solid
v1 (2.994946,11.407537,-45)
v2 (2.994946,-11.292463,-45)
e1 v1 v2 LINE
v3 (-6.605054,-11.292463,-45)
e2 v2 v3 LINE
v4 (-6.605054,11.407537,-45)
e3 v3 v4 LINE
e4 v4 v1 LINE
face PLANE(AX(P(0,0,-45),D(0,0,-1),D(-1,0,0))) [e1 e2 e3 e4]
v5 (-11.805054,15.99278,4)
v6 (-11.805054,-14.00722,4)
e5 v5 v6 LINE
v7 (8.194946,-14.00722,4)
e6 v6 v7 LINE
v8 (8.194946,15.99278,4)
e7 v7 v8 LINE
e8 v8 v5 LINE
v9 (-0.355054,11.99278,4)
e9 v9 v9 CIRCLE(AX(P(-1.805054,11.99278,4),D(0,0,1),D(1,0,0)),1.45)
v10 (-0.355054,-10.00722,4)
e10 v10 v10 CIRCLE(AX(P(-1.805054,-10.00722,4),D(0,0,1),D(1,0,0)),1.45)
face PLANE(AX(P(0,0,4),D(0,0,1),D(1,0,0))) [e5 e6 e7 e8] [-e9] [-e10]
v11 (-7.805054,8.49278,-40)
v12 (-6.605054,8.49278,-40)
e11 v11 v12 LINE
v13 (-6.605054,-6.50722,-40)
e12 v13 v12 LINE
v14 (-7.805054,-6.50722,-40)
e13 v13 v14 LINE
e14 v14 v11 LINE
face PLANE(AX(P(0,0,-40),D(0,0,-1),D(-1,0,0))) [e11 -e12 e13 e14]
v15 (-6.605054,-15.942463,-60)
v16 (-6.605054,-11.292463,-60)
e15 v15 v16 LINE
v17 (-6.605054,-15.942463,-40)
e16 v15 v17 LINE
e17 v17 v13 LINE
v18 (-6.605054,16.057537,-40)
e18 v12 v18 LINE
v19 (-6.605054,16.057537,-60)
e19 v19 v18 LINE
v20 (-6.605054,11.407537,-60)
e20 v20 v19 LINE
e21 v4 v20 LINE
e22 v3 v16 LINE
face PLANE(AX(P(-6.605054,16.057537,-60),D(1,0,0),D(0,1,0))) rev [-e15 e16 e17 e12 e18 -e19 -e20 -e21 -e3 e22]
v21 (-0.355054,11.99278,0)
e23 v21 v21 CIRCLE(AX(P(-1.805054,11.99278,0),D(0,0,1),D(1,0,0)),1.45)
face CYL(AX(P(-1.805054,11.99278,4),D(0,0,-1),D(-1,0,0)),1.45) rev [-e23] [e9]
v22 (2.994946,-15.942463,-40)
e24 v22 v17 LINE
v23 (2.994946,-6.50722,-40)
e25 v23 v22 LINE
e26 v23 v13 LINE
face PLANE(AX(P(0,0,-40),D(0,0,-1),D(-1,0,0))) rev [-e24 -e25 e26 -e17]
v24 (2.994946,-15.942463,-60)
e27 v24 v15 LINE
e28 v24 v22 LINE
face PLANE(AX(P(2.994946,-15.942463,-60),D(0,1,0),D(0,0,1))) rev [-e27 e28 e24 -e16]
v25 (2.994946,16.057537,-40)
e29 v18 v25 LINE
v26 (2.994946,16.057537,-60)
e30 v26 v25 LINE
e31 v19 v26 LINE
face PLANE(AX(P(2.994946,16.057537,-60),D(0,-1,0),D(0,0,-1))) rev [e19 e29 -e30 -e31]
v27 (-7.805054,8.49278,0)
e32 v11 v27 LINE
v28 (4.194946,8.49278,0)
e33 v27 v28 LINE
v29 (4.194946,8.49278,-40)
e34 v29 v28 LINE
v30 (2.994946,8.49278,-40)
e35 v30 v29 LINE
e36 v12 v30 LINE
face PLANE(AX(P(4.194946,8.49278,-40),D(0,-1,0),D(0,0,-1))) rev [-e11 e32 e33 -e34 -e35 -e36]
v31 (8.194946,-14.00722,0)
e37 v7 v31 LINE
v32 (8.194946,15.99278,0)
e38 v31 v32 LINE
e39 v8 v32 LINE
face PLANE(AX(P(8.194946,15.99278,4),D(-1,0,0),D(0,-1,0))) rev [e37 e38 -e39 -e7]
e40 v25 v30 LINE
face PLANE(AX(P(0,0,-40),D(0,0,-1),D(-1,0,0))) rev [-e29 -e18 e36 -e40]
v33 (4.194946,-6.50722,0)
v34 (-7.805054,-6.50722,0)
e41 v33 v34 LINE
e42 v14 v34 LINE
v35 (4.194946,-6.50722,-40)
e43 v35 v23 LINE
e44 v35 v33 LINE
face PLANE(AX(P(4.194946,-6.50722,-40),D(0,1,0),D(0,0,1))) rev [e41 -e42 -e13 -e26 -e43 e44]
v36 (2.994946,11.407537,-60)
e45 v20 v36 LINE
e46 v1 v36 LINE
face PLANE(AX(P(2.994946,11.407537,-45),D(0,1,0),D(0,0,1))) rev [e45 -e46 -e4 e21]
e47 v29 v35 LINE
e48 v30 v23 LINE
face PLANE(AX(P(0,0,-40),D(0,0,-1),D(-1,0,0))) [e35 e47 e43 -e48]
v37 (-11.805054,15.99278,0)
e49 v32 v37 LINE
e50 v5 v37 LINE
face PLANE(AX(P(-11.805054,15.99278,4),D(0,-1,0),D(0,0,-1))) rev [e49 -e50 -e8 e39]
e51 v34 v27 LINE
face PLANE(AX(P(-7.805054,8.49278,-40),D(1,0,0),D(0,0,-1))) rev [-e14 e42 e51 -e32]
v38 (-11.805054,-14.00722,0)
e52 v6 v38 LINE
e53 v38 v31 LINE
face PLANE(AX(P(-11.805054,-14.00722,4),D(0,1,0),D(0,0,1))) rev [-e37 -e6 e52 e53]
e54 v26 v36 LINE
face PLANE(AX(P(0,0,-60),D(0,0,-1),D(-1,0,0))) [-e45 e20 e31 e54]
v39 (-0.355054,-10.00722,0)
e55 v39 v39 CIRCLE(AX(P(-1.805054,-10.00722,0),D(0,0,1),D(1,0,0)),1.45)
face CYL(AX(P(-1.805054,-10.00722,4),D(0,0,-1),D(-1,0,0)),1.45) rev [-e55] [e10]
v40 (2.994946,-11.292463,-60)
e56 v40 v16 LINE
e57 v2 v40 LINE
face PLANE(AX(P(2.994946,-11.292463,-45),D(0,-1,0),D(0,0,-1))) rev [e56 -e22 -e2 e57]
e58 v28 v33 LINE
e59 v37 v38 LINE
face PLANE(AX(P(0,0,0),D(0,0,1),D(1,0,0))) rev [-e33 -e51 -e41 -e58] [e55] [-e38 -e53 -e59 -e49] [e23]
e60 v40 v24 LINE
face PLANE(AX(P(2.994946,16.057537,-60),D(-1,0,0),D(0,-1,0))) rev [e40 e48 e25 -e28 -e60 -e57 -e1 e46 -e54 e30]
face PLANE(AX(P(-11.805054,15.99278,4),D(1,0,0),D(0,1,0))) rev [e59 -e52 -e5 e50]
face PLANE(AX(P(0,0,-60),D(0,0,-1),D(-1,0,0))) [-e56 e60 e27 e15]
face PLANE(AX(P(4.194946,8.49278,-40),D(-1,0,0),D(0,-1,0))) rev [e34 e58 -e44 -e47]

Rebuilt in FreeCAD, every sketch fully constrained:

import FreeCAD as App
import Part
import Sketcher
from FreeCAD import Vector
Q = App.Units.Quantity


def add_polygon(sketch, points):
    """Adds a closed chain of lines whose ends are joined by coincident constraints."""
    first, n = sketch.GeometryCount, len(points)
    for a, b in zip(points, points[1:] + points[:1]):
        sketch.addGeometry(Part.LineSegment(App.Vector(*a, 0), App.Vector(*b, 0)), False)
    for i in range(n):
        sketch.addConstraint(Sketcher.Constraint("Coincident", first + i, 2, first + (i + 1) % n, 1))

doc = App.newDocument("Part")
body = doc.addObject("PartDesign::Body", "Body")

# Sketch on XY plane
sketch1 = doc.addObject("Sketcher::SketchObject", "Sketch")
body.addObject(sketch1)
sketch1.AttachmentSupport = (doc.XY_Plane, [""])
sketch1.MapMode = "FlatFace"
add_polygon(sketch1, [(-11.805054, 15.99278), (-11.805054, -14.00722), (8.194946, -14.00722), (8.194946, 15.99278)])  # lines 0-3
sketch1.addGeometry(Part.Circle(Vector(-1.805054, -10.00722, 0), Vector(0, 0, 1), 1.45), False)  # 4
sketch1.addGeometry(Part.Circle(Vector(-1.805054, 11.99278, 0), Vector(0, 0, 1), 1.45), False)  # 5
sketch1.addConstraint(Sketcher.Constraint("Vertical", 0))
sketch1.addConstraint(Sketcher.Constraint("Horizontal", 1))
sketch1.addConstraint(Sketcher.Constraint("Vertical", 2))
sketch1.addConstraint(Sketcher.Constraint("Horizontal", 3))
sketch1.addConstraint(Sketcher.Constraint("Equal", 4, 5))
sketch1.addConstraint(Sketcher.Constraint("Vertical", 4, 3, 5, 3))
sketch1.addConstraint(Sketcher.Constraint("Diameter", 4, Q("2.9 mm")))
sketch1.addConstraint(Sketcher.Constraint("DistanceX", 1, 1, 1, 2, Q("20 mm")))
sketch1.addConstraint(Sketcher.Constraint("DistanceY", 0, 2, 0, 1, Q("30 mm")))
sketch1.addConstraint(Sketcher.Constraint("DistanceY", 4, 3, 5, 3, Q("22 mm")))
sketch1.addConstraint(Sketcher.Constraint("DistanceX", 0, 2, 4, 3, Q("10 mm")))
sketch1.addConstraint(Sketcher.Constraint("DistanceY", 0, 2, 4, 3, Q("4 mm")))
sketch1.addConstraint(Sketcher.Constraint("DistanceY", 4, 3, -1, 1, Q("10.00722 mm")))
sketch1.addConstraint(Sketcher.Constraint("DistanceX", 4, 3, -1, 1, Q("1.805054 mm")))
pad1 = doc.addObject("PartDesign::Pad", "Pad")
body.addObject(pad1)
pad1.Profile = sketch1
pad1.Length = 4

# Sketch on XY plane
sketch2 = doc.addObject("Sketcher::SketchObject", "Sketch001")
body.addObject(sketch2)
sketch2.AttachmentSupport = (doc.XY_Plane, [""])
sketch2.MapMode = "FlatFace"
add_polygon(sketch2, [(4.194946, 8.49278), (4.194946, -6.50722), (-7.805054, -6.50722), (-7.805054, 8.49278)])  # lines 0-3
sketch2.addConstraint(Sketcher.Constraint("Vertical", 0))
sketch2.addConstraint(Sketcher.Constraint("Horizontal", 1))
sketch2.addConstraint(Sketcher.Constraint("Vertical", 2))
sketch2.addConstraint(Sketcher.Constraint("Horizontal", 3))
sketch2.addConstraint(Sketcher.Constraint("DistanceX", 1, 2, 1, 1, Q("12 mm")))
sketch2.addConstraint(Sketcher.Constraint("DistanceY", 0, 2, 0, 1, Q("15 mm")))
sketch2.addConstraint(Sketcher.Constraint("DistanceY", 0, 2, -1, 1, Q("6.50722 mm")))
sketch2.addConstraint(Sketcher.Constraint("DistanceX", -1, 1, 0, 2, Q("4.194946 mm")))
pad2 = doc.addObject("PartDesign::Pad", "Pad001")
body.addObject(pad2)
pad2.Profile = sketch2
pad2.Length = 40
pad2.Reversed = True

# Sketch on XY plane
sketch3 = doc.addObject("Sketcher::SketchObject", "Sketch002")
body.addObject(sketch3)
sketch3.AttachmentSupport = (doc.XY_Plane, [""])
sketch3.MapMode = "FlatFace"
sketch3.AttachmentOffset = App.Placement(Vector(0, 0, -40), App.Rotation())
add_polygon(sketch3, [(2.994946, 16.057537), (2.994946, -15.942463), (-6.605054, -15.942463), (-6.605054, 16.057537)])  # lines 0-3
sketch3.addConstraint(Sketcher.Constraint("Vertical", 0))
sketch3.addConstraint(Sketcher.Constraint("Horizontal", 1))
sketch3.addConstraint(Sketcher.Constraint("Vertical", 2))
sketch3.addConstraint(Sketcher.Constraint("Horizontal", 3))
sketch3.addConstraint(Sketcher.Constraint("DistanceY", 0, 2, 0, 1, Q("32 mm")))
sketch3.addConstraint(Sketcher.Constraint("DistanceX", 1, 2, 1, 1, Q("9.6 mm")))
sketch3.addConstraint(Sketcher.Constraint("DistanceX", -1, 1, 0, 2, Q("2.994946 mm")))
sketch3.addConstraint(Sketcher.Constraint("DistanceY", 0, 2, -1, 1, Q("15.942463 mm")))
pad3 = doc.addObject("PartDesign::Pad", "Pad002")
body.addObject(pad3)
pad3.Profile = sketch3
pad3.Length = 20
pad3.Reversed = True

# Sketch on XY plane
sketch4 = doc.addObject("Sketcher::SketchObject", "Sketch003")
body.addObject(sketch4)
sketch4.AttachmentSupport = (doc.XY_Plane, [""])
sketch4.MapMode = "FlatFace"
sketch4.AttachmentOffset = App.Placement(Vector(0, 0, -60), App.Rotation())
add_polygon(sketch4, [(2.994946, 11.407537), (2.994946, -11.292463), (-6.605054, -11.292463), (-6.605054, 11.407537)])  # lines 0-3
sketch4.addConstraint(Sketcher.Constraint("Vertical", 0))
sketch4.addConstraint(Sketcher.Constraint("Horizontal", 1))
sketch4.addConstraint(Sketcher.Constraint("Vertical", 2))
sketch4.addConstraint(Sketcher.Constraint("Horizontal", 3))
sketch4.addConstraint(Sketcher.Constraint("DistanceX", 1, 2, 1, 1, Q("9.6 mm")))
sketch4.addConstraint(Sketcher.Constraint("DistanceY", 0, 2, 0, 1, Q("22.7 mm")))
sketch4.addConstraint(Sketcher.Constraint("DistanceX", -1, 1, 0, 2, Q("2.994946 mm")))
sketch4.addConstraint(Sketcher.Constraint("DistanceY", 0, 2, -1, 1, Q("11.292463 mm")))
pad4 = doc.addObject("PartDesign::Pad", "Pad003")
body.addObject(pad4)
pad4.Profile = sketch4
pad4.Length = 15

# Sketch on XY plane
sketch5 = doc.addObject("Sketcher::SketchObject", "Sketch004")
body.addObject(sketch5)
sketch5.AttachmentSupport = (doc.XY_Plane, [""])
sketch5.MapMode = "FlatFace"
sketch5.AttachmentOffset = App.Placement(Vector(0, 0, -60), App.Rotation())
add_polygon(sketch5, [(2.994946, 11.407537), (2.994946, -11.292463), (-6.605054, -11.292463), (-6.605054, 11.407537)])  # lines 0-3
sketch5.addConstraint(Sketcher.Constraint("Vertical", 0))
sketch5.addConstraint(Sketcher.Constraint("Horizontal", 1))
sketch5.addConstraint(Sketcher.Constraint("Vertical", 2))
sketch5.addConstraint(Sketcher.Constraint("Horizontal", 3))
sketch5.addConstraint(Sketcher.Constraint("DistanceX", 1, 2, 1, 1, Q("9.6 mm")))
sketch5.addConstraint(Sketcher.Constraint("DistanceY", 0, 2, 0, 1, Q("22.7 mm")))
sketch5.addConstraint(Sketcher.Constraint("DistanceX", -1, 1, 0, 2, Q("2.994946 mm")))
sketch5.addConstraint(Sketcher.Constraint("DistanceY", 0, 2, -1, 1, Q("11.292463 mm")))
pocket1 = doc.addObject("PartDesign::Pocket", "Pocket")
body.addObject(pocket1)
pocket1.Profile = sketch5
pocket1.Length = 15
pocket1.Reversed = True

doc.recompute()
